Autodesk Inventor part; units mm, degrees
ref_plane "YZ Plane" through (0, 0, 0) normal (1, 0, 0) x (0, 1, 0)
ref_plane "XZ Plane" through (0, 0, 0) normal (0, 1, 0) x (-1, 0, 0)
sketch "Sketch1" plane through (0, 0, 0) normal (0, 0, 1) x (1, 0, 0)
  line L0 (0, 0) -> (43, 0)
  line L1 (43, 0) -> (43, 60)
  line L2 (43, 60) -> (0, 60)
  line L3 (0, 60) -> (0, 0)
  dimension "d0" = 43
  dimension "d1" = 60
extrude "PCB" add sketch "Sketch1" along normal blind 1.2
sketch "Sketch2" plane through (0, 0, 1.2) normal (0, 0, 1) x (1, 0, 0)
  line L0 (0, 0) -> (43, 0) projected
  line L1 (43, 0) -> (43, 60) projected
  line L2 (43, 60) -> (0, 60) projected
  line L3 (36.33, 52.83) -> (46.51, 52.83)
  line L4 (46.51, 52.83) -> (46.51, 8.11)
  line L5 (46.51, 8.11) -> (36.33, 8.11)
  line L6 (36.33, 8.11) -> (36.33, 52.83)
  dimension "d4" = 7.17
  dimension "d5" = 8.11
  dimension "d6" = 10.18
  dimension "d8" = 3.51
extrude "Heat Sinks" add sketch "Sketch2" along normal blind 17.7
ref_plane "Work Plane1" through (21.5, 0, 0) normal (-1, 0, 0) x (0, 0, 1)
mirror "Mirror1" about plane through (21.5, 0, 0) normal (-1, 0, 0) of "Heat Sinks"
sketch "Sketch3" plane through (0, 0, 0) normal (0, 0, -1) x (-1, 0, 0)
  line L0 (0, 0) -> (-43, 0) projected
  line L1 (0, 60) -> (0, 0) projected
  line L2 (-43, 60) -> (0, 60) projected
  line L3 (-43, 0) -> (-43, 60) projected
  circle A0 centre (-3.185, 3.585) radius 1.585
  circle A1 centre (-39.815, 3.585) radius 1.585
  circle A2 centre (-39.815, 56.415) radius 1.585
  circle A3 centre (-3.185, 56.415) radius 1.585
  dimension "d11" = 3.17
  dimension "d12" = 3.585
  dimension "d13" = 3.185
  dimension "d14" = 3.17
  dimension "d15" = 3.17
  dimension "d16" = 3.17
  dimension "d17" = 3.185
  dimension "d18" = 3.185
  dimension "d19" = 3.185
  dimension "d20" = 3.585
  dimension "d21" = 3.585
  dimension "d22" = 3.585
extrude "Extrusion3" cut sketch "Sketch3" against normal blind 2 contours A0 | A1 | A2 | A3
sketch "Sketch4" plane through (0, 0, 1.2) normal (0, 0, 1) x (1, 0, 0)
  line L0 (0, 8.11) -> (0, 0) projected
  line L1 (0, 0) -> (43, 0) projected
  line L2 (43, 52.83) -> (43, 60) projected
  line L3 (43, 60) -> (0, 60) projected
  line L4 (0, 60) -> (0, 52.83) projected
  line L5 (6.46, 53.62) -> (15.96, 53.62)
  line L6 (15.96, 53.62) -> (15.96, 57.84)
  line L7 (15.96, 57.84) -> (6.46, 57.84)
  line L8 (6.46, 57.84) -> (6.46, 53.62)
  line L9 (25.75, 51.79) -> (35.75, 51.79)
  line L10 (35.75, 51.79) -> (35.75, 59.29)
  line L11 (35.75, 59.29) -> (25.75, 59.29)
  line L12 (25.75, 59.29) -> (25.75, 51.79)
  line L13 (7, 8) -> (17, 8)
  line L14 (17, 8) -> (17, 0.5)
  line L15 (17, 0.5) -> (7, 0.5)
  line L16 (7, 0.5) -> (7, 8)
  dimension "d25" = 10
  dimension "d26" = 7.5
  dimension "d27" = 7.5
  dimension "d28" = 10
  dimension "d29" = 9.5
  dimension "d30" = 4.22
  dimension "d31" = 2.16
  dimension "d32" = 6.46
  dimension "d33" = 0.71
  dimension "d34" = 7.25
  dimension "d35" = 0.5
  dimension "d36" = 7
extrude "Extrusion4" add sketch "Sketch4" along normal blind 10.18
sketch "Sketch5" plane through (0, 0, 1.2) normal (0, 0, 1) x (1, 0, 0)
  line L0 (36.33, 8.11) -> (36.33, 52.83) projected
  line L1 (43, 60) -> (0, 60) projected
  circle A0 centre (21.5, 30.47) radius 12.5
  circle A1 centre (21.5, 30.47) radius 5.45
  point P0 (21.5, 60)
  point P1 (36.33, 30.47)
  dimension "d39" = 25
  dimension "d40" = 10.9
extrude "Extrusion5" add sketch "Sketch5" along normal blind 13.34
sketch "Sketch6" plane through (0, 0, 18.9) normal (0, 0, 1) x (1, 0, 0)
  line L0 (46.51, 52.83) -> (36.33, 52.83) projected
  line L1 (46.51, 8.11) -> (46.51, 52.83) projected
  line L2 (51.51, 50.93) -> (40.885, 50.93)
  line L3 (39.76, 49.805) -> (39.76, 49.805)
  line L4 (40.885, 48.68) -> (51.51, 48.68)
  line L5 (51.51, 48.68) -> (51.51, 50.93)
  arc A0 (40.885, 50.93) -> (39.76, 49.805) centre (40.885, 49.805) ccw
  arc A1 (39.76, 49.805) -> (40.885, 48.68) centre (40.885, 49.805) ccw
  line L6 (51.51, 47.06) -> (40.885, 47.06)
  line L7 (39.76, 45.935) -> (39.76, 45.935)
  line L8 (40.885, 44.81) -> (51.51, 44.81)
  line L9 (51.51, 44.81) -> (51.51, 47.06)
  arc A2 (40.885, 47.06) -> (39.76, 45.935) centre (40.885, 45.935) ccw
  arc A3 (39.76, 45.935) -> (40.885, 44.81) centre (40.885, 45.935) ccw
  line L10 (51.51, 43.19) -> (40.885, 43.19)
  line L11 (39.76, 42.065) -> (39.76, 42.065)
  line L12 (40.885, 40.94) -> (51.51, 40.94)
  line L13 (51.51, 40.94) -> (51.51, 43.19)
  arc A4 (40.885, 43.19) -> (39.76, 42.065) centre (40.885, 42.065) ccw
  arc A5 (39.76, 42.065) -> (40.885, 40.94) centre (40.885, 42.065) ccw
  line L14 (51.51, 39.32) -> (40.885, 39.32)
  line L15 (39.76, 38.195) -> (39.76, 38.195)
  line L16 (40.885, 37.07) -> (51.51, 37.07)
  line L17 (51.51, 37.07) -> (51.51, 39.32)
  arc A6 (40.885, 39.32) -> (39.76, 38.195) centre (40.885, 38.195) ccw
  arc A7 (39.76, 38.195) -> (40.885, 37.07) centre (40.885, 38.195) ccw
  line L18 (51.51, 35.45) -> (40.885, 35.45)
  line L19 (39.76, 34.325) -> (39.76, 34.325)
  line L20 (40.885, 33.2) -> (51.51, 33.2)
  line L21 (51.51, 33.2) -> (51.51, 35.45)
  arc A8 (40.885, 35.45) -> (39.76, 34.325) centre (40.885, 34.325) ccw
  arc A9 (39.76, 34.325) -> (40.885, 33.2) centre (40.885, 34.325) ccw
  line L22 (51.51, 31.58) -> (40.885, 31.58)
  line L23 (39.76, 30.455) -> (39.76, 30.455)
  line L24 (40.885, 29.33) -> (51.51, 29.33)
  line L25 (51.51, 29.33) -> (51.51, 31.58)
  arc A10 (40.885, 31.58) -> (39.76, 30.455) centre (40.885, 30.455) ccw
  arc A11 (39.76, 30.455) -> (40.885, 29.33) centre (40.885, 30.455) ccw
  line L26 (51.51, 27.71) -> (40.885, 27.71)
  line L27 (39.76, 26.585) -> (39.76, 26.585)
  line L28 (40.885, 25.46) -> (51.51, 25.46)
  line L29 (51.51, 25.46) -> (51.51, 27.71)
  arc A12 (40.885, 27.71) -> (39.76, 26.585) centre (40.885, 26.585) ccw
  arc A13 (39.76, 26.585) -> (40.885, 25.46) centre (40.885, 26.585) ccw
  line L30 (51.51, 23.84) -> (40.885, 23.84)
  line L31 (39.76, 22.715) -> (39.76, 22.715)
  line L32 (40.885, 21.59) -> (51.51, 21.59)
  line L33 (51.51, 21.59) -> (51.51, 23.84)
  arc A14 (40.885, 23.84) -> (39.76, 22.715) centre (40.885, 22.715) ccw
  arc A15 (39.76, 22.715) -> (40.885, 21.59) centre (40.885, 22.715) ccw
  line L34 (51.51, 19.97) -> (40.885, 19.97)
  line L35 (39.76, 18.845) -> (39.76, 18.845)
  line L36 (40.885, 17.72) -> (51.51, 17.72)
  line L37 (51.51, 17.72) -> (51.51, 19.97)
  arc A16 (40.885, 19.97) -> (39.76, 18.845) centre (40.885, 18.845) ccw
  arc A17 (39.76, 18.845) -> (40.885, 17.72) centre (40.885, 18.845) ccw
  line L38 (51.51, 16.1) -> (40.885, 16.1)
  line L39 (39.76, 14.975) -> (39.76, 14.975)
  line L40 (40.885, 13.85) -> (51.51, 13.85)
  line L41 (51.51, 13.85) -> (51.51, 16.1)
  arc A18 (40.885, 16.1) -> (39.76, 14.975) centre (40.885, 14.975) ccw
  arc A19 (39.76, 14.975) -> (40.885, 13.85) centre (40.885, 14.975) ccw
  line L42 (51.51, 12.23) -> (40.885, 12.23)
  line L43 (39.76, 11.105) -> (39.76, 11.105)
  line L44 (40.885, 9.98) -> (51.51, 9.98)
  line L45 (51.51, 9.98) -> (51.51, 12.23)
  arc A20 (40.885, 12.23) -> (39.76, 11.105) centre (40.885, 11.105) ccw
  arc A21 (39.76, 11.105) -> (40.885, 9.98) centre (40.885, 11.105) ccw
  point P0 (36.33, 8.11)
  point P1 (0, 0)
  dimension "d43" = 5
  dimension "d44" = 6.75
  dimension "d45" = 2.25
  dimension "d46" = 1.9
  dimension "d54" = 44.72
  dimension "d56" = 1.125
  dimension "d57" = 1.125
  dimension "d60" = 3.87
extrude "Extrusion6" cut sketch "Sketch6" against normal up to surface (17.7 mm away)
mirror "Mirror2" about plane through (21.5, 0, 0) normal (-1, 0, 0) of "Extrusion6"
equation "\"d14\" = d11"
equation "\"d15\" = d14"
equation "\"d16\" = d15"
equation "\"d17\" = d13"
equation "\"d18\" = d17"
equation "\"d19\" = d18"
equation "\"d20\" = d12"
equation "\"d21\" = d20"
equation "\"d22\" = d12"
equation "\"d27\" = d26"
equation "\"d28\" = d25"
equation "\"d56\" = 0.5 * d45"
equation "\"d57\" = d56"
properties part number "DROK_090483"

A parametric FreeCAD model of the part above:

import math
import FreeCAD as App
import Part
import Sketcher

V = App.Vector
Q = App.Units.Quantity


def add_polygon(sketch, points):
    """Adds a closed chain of lines whose ends are joined by coincident constraints."""
    first, n = sketch.GeometryCount, len(points)
    for a, b in zip(points, points[1:] + points[:1]):
        sketch.addGeometry(Part.LineSegment(App.Vector(*a, 0), App.Vector(*b, 0)), False)
    for i in range(n):
        sketch.addConstraint(Sketcher.Constraint("Coincident", first + i, 2, first + (i + 1) % n, 1))

doc = App.newDocument("Part")
body = doc.addObject("PartDesign::Body", "Body")

sketch1 = doc.addObject("Sketcher::SketchObject", "Sketch")
body.addObject(sketch1)
sketch1.AttachmentSupport = (doc.XY_Plane, [""])
sketch1.MapMode = "FlatFace"
add_polygon(sketch1, [(0, 60), (0, 0), (43, 0), (43, 60)])
sketch1.addConstraint([
    Sketcher.Constraint("Vertical", 0),
    Sketcher.Constraint("Horizontal", 1),
    Sketcher.Constraint("Vertical", 2),
    Sketcher.Constraint("Horizontal", 3),
    Sketcher.Constraint("Coincident", 0, 2, -1, 1),
    Sketcher.Constraint("DistanceX", 1, 1, 1, 2, Q("43 mm")),
    Sketcher.Constraint("DistanceY", 0, 2, 0, 1, Q("60 mm")),
])
pad1 = doc.addObject("PartDesign::Pad", "Pad")
body.addObject(pad1)
pad1.Profile = sketch1
pad1.Length = 1.2

sketch2 = doc.addObject("Sketcher::SketchObject", "Sketch001")
body.addObject(sketch2)
sketch2.AttachmentSupport = (doc.XY_Plane, [""])
sketch2.MapMode = "FlatFace"
sketch2.AttachmentOffset = App.Placement(V(0, 0, 1.2), App.Rotation())
add_polygon(sketch2, [(36.33, 8.11), (46.51, 8.11), (46.51, 52.83), (36.33, 52.83)])
sketch2.addConstraint([
    Sketcher.Constraint("Horizontal", 0),
    Sketcher.Constraint("Vertical", 1),
    Sketcher.Constraint("Horizontal", 2),
    Sketcher.Constraint("Vertical", 3),
    Sketcher.Constraint("DistanceX", 0, 1, 0, 2, Q("10.18 mm")),
    Sketcher.Constraint("DistanceY", -1, 1, 0, 2, Q("8.11 mm")),
    Sketcher.Constraint("DistanceY", 1, 1, 1, 2, Q("44.72 mm")),
    Sketcher.Constraint("DistanceX", -1, 1, 0, 2, Q("46.51 mm")),
])
pad2 = doc.addObject("PartDesign::Pad", "Pad001")
body.addObject(pad2)
pad2.Profile = sketch2
pad2.Length = 17.7
doc.recompute()

datumplane = doc.addObject("PartDesign::Plane", "DatumPlane")
body.addObject(datumplane)
datumplane.AttachmentSupport = (doc.YZ_Plane, [""])
datumplane.MapMode = "FlatFace"
datumplane.AttachmentOffset = App.Placement(V(0, 0, 21.5), App.Rotation())
mirrored = doc.addObject("PartDesign::Mirrored", "Mirrored")
body.addObject(mirrored)
mirrored.Originals = [pad2]
mirrored.MirrorPlane = (datumplane, [""])
body.Tip = mirrored

sketch3 = doc.addObject("Sketcher::SketchObject", "Sketch002")
body.addObject(sketch3)
sketch3.AttachmentSupport = (doc.XY_Plane, [""])
sketch3.MapMode = "FlatFace"
sketch3.addGeometry([
    Part.Circle(V(3.185, 3.585, 0), V(0, 0, 1), 1.585),
    Part.Circle(V(39.815, 3.585, 0), V(0, 0, 1), 1.585),
    Part.Circle(V(39.815, 56.415, 0), V(0, 0, 1), 1.585),
    Part.Circle(V(3.185, 56.415, 0), V(0, 0, 1), 1.585),
], False)
sketch3.addConstraint([
    Sketcher.Constraint("Equal", 0, 1),
    Sketcher.Constraint("Equal", 1, 2),
    Sketcher.Constraint("Equal", 2, 3),
    Sketcher.Constraint("Horizontal", 0, 3, 1, 3),
    Sketcher.Constraint("Horizontal", 2, 3, 3, 3),
    Sketcher.Constraint("Vertical", 1, 3, 2, 3),
    Sketcher.Constraint("Vertical", 0, 3, 3, 3),
    Sketcher.Constraint("Diameter", 0, Q("3.17 mm")),
    Sketcher.Constraint("DistanceX", -1, 1, 0, 3, Q("3.185 mm")),
    Sketcher.Constraint("DistanceY", -1, 1, 0, 3, Q("3.585 mm")),
    Sketcher.Constraint("DistanceX", 0, 3, 1, 3, Q("36.63 mm")),
    Sketcher.Constraint("DistanceY", 1, 3, 2, 3, Q("52.83 mm")),
])
pocket1 = doc.addObject("PartDesign::Pocket", "Pocket")
body.addObject(pocket1)
pocket1.Profile = sketch3
pocket1.Length = 2
pocket1.Reversed = True

sketch4 = doc.addObject("Sketcher::SketchObject", "Sketch003")
body.addObject(sketch4)
sketch4.AttachmentSupport = (doc.XY_Plane, [""])
sketch4.MapMode = "FlatFace"
sketch4.AttachmentOffset = App.Placement(V(0, 0, 1.2), App.Rotation())
add_polygon(sketch4, [(6.46, 57.84), (6.46, 53.62), (15.96, 53.62), (15.96, 57.84)])
add_polygon(sketch4, [(25.75, 59.29), (25.75, 51.79), (35.75, 51.79), (35.75, 59.29)])
add_polygon(sketch4, [(17, 8), (7, 8), (7, 0.5), (17, 0.5)])
sketch4.addConstraint([
    Sketcher.Constraint("Vertical", 0),
    Sketcher.Constraint("Horizontal", 1),
    Sketcher.Constraint("Vertical", 2),
    Sketcher.Constraint("Horizontal", 3),
    Sketcher.Constraint("Vertical", 4),
    Sketcher.Constraint("Horizontal", 5),
    Sketcher.Constraint("Vertical", 6),
    Sketcher.Constraint("Horizontal", 7),
    Sketcher.Constraint("Horizontal", 8),
    Sketcher.Constraint("Vertical", 9),
    Sketcher.Constraint("Horizontal", 10),
    Sketcher.Constraint("Vertical", 11),
    Sketcher.Constraint("Equal", 7, 8),
    Sketcher.Constraint("Equal", 6, 9),
    Sketcher.Constraint("DistanceX", 5, 1, 5, 2, Q("10 mm")),
    Sketcher.Constraint("DistanceX", 1, 1, 1, 2, Q("9.5 mm")),
    Sketcher.Constraint("DistanceY", 4, 2, 4, 1, Q("7.5 mm")),
    Sketcher.Constraint("DistanceX", -1, 1, 8, 2, Q("7 mm")),
    Sketcher.Constraint("DistanceY", 0, 2, 0, 1, Q("4.22 mm")),
    Sketcher.Constraint("DistanceY", -1, 1, 9, 2, Q("0.5 mm")),
    Sketcher.Constraint("DistanceX", -1, 1, 0, 2, Q("6.46 mm")),
    Sketcher.Constraint("DistanceY", -1, 1, 0, 2, Q("53.62 mm")),
    Sketcher.Constraint("DistanceX", -1, 1, 4, 2, Q("25.75 mm")),
    Sketcher.Constraint("DistanceY", -1, 1, 4, 2, Q("51.79 mm")),
])
pad3 = doc.addObject("PartDesign::Pad", "Pad002")
body.addObject(pad3)
pad3.Profile = sketch4
pad3.Length = 10.18

sketch5 = doc.addObject("Sketcher::SketchObject", "Sketch004")
body.addObject(sketch5)
sketch5.AttachmentSupport = (doc.XY_Plane, [""])
sketch5.MapMode = "FlatFace"
sketch5.AttachmentOffset = App.Placement(V(0, 0, 1.2), App.Rotation())
sketch5.addGeometry([
    Part.Circle(V(21.5, 30.47, 0), V(0, 0, 1), 12.5),
    Part.Circle(V(21.5, 30.47, 0), V(0, 0, 1), 5.45),
], False)
sketch5.addConstraint([
    Sketcher.Constraint("Coincident", 1, 3, 0, 3),
    Sketcher.Constraint("Diameter", 0, Q("25 mm")),
    Sketcher.Constraint("Diameter", 1, Q("10.9 mm")),
    Sketcher.Constraint("DistanceX", -1, 1, 0, 3, Q("21.5 mm")),
    Sketcher.Constraint("DistanceY", -1, 1, 0, 3, Q("30.47 mm")),
])
pad4 = doc.addObject("PartDesign::Pad", "Pad003")
body.addObject(pad4)
pad4.Profile = sketch5
pad4.Length = 13.34

sketch6 = doc.addObject("Sketcher::SketchObject", "Sketch005")
body.addObject(sketch6)
sketch6.AttachmentSupport = (doc.XY_Plane, [""])
sketch6.MapMode = "FlatFace"
sketch6.AttachmentOffset = App.Placement(V(0, 0, 18.9), App.Rotation())
sketch6.addGeometry([
    Part.LineSegment(V(40.885, 9.98, 0), V(51.51, 9.98, 0)),
    Part.LineSegment(V(51.51, 9.98, 0), V(51.51, 12.23, 0)),
    Part.LineSegment(V(51.51, 12.23, 0), V(40.885, 12.23, 0)),
    Part.ArcOfCircle(Part.Circle(V(40.885, 11.105, 0), V(0, 0, 1), 1.125), math.radians(90), math.radians(270)),
    Part.LineSegment(V(40.885, 48.68, 0), V(51.51, 48.68, 0)),
    Part.LineSegment(V(51.51, 48.68, 0), V(51.51, 50.93, 0)),
    Part.LineSegment(V(51.51, 50.93, 0), V(40.885, 50.93, 0)),
    Part.ArcOfCircle(Part.Circle(V(40.885, 49.805, 0), V(0, 0, 1), 1.125), math.radians(90), math.radians(270)),
    Part.LineSegment(V(40.885, 44.81, 0), V(51.51, 44.81, 0)),
    Part.LineSegment(V(51.51, 44.81, 0), V(51.51, 47.06, 0)),
    Part.LineSegment(V(51.51, 47.06, 0), V(40.885, 47.06, 0)),
    Part.ArcOfCircle(Part.Circle(V(40.885, 45.935, 0), V(0, 0, 1), 1.125), math.radians(90), math.radians(270)),
    Part.LineSegment(V(40.885, 40.94, 0), V(51.51, 40.94, 0)),
    Part.LineSegment(V(51.51, 40.94, 0), V(51.51, 43.19, 0)),
    Part.LineSegment(V(51.51, 43.19, 0), V(40.885, 43.19, 0)),
    Part.ArcOfCircle(Part.Circle(V(40.885, 42.065, 0), V(0, 0, 1), 1.125), math.radians(90), math.radians(270)),
    Part.LineSegment(V(40.885, 37.07, 0), V(51.51, 37.07, 0)),
    Part.LineSegment(V(51.51, 37.07, 0), V(51.51, 39.32, 0)),
    Part.LineSegment(V(51.51, 39.32, 0), V(40.885, 39.32, 0)),
    Part.ArcOfCircle(Part.Circle(V(40.885, 38.195, 0), V(0, 0, 1), 1.125), math.radians(90), math.radians(270)),
    Part.LineSegment(V(40.885, 33.2, 0), V(51.51, 33.2, 0)),
    Part.LineSegment(V(51.51, 33.2, 0), V(51.51, 35.45, 0)),
    Part.LineSegment(V(51.51, 35.45, 0), V(40.885, 35.45, 0)),
    Part.ArcOfCircle(Part.Circle(V(40.885, 34.325, 0), V(0, 0, 1), 1.125), math.radians(90), math.radians(270)),
    Part.LineSegment(V(40.885, 29.33, 0), V(51.51, 29.33, 0)),
    Part.LineSegment(V(51.51, 29.33, 0), V(51.51, 31.58, 0)),
    Part.LineSegment(V(51.51, 31.58, 0), V(40.885, 31.58, 0)),
    Part.ArcOfCircle(Part.Circle(V(40.885, 30.455, 0), V(0, 0, 1), 1.125), math.radians(90), math.radians(270)),
    Part.LineSegment(V(40.885, 25.46, 0), V(51.51, 25.46, 0)),
    Part.LineSegment(V(51.51, 25.46, 0), V(51.51, 27.71, 0)),
    Part.LineSegment(V(51.51, 27.71, 0), V(40.885, 27.71, 0)),
    Part.ArcOfCircle(Part.Circle(V(40.885, 26.585, 0), V(0, 0, 1), 1.125), math.radians(90), math.radians(270)),
    Part.LineSegment(V(40.885, 21.59, 0), V(51.51, 21.59, 0)),
    Part.LineSegment(V(51.51, 21.59, 0), V(51.51, 23.84, 0)),
    Part.LineSegment(V(51.51, 23.84, 0), V(40.885, 23.84, 0)),
    Part.ArcOfCircle(Part.Circle(V(40.885, 22.715, 0), V(0, 0, 1), 1.125), math.radians(90), math.radians(270)),
    Part.LineSegment(V(40.885, 17.72, 0), V(51.51, 17.72, 0)),
    Part.LineSegment(V(51.51, 17.72, 0), V(51.51, 19.97, 0)),
    Part.LineSegment(V(51.51, 19.97, 0), V(40.885, 19.97, 0)),
    Part.ArcOfCircle(Part.Circle(V(40.885, 18.845, 0), V(0, 0, 1), 1.125), math.radians(90), math.radians(270)),
    Part.LineSegment(V(40.885, 13.85, 0), V(51.51, 13.85, 0)),
    Part.LineSegment(V(51.51, 13.85, 0), V(51.51, 16.1, 0)),
    Part.LineSegment(V(51.51, 16.1, 0), V(40.885, 16.1, 0)),
    Part.ArcOfCircle(Part.Circle(V(40.885, 14.975, 0), V(0, 0, 1), 1.125), math.radians(90), math.radians(270)),
], False)
sketch6.addConstraint([
    Sketcher.Constraint("Coincident", 0, 2, 1, 1),
    Sketcher.Constraint("Coincident", 1, 2, 2, 1),
    Sketcher.Constraint("Tangent", 2, 2, 3, 1),
    Sketcher.Constraint("Tangent", 3, 2, 0, 1),
    Sketcher.Constraint("Coincident", 4, 2, 5, 1),
    Sketcher.Constraint("Coincident", 5, 2, 6, 1),
    Sketcher.Constraint("Tangent", 6, 2, 7, 1),
    Sketcher.Constraint("Tangent", 7, 2, 4, 1),
    Sketcher.Constraint("Coincident", 8, 2, 9, 1),
    Sketcher.Constraint("Coincident", 9, 2, 10, 1),
    Sketcher.Constraint("Tangent", 10, 2, 11, 1),
    Sketcher.Constraint("Tangent", 11, 2, 8, 1),
    Sketcher.Constraint("Coincident", 12, 2, 13, 1),
    Sketcher.Constraint("Coincident", 13, 2, 14, 1),
    Sketcher.Constraint("Tangent", 14, 2, 15, 1),
    Sketcher.Constraint("Tangent", 15, 2, 12, 1),
    Sketcher.Constraint("Coincident", 16, 2, 17, 1),
    Sketcher.Constraint("Coincident", 17, 2, 18, 1),
    Sketcher.Constraint("Tangent", 18, 2, 19, 1),
    Sketcher.Constraint("Tangent", 19, 2, 16, 1),
    Sketcher.Constraint("Coincident", 20, 2, 21, 1),
    Sketcher.Constraint("Coincident", 21, 2, 22, 1),
    Sketcher.Constraint("Tangent", 22, 2, 23, 1),
    Sketcher.Constraint("Tangent", 23, 2, 20, 1),
    Sketcher.Constraint("Coincident", 24, 2, 25, 1),
    Sketcher.Constraint("Coincident", 25, 2, 26, 1),
    Sketcher.Constraint("Tangent", 26, 2, 27, 1),
    Sketcher.Constraint("Tangent", 27, 2, 24, 1),
    Sketcher.Constraint("Coincident", 28, 2, 29, 1),
    Sketcher.Constraint("Coincident", 29, 2, 30, 1),
    Sketcher.Constraint("Tangent", 30, 2, 31, 1),
    Sketcher.Constraint("Tangent", 31, 2, 28, 1),
    Sketcher.Constraint("Coincident", 32, 2, 33, 1),
    Sketcher.Constraint("Coincident", 33, 2, 34, 1),
    Sketcher.Constraint("Tangent", 34, 2, 35, 1),
    Sketcher.Constraint("Tangent", 35, 2, 32, 1),
    Sketcher.Constraint("Coincident", 36, 2, 37, 1),
    Sketcher.Constraint("Coincident", 37, 2, 38, 1),
    Sketcher.Constraint("Tangent", 38, 2, 39, 1),
    Sketcher.Constraint("Tangent", 39, 2, 36, 1),
    Sketcher.Constraint("Coincident", 40, 2, 41, 1),
    Sketcher.Constraint("Coincident", 41, 2, 42, 1),
    Sketcher.Constraint("Tangent", 42, 2, 43, 1),
    Sketcher.Constraint("Tangent", 43, 2, 40, 1),
    Sketcher.Constraint("Horizontal", 0),
    Sketcher.Constraint("Vertical", 1),
    Sketcher.Constraint("Horizontal", 2),
    Sketcher.Constraint("Horizontal", 4),
    Sketcher.Constraint("Vertical", 5),
    Sketcher.Constraint("Horizontal", 6),
    Sketcher.Constraint("Horizontal", 8),
    Sketcher.Constraint("Vertical", 9),
    Sketcher.Constraint("Horizontal", 10),
    Sketcher.Constraint("Horizontal", 12),
    Sketcher.Constraint("Vertical", 13),
    Sketcher.Constraint("Horizontal", 14),
    Sketcher.Constraint("Horizontal", 16),
    Sketcher.Constraint("Vertical", 17),
    Sketcher.Constraint("Horizontal", 18),
    Sketcher.Constraint("Horizontal", 20),
    Sketcher.Constraint("Vertical", 21),
    Sketcher.Constraint("Horizontal", 22),
    Sketcher.Constraint("Horizontal", 24),
    Sketcher.Constraint("Vertical", 25),
    Sketcher.Constraint("Horizontal", 26),
    Sketcher.Constraint("Horizontal", 28),
    Sketcher.Constraint("Vertical", 29),
    Sketcher.Constraint("Horizontal", 30),
    Sketcher.Constraint("Horizontal", 32),
    Sketcher.Constraint("Vertical", 33),
    Sketcher.Constraint("Horizontal", 34),
    Sketcher.Constraint("Horizontal", 36),
    Sketcher.Constraint("Vertical", 37),
    Sketcher.Constraint("Horizontal", 38),
    Sketcher.Constraint("Horizontal", 40),
    Sketcher.Constraint("Vertical", 41),
    Sketcher.Constraint("Horizontal", 42),
    Sketcher.Constraint("Equal", 3, 7),
    Sketcher.Constraint("Equal", 7, 11),
    Sketcher.Constraint("Equal", 11, 15),
    Sketcher.Constraint("Equal", 15, 19),
    Sketcher.Constraint("Equal", 19, 23),
    Sketcher.Constraint("Equal", 23, 27),
    Sketcher.Constraint("Equal", 27, 31),
    Sketcher.Constraint("Equal", 31, 35),
    Sketcher.Constraint("Equal", 35, 39),
    Sketcher.Constraint("Equal", 39, 43),
    Sketcher.Constraint("Vertical", 3, 3, 7, 3),
    Sketcher.Constraint("Vertical", 7, 3, 11, 3),
    Sketcher.Constraint("Vertical", 11, 3, 15, 3),
    Sketcher.Constraint("Vertical", 15, 3, 19, 3),
    Sketcher.Constraint("Vertical", 19, 3, 23, 3),
    Sketcher.Constraint("Vertical", 23, 3, 27, 3),
    Sketcher.Constraint("Vertical", 27, 3, 31, 3),
    Sketcher.Constraint("Vertical", 31, 3, 35, 3),
    Sketcher.Constraint("Vertical", 35, 3, 39, 3),
    Sketcher.Constraint("Vertical", 39, 3, 43, 3),
    Sketcher.Constraint("Vertical", 1, 2, 4, 2),
    Sketcher.Constraint("Vertical", 5, 2, 8, 2),
    Sketcher.Constraint("Vertical", 9, 2, 12, 2),
    Sketcher.Constraint("Vertical", 13, 2, 16, 2),
    Sketcher.Constraint("Vertical", 17, 2, 20, 2),
    Sketcher.Constraint("Vertical", 21, 2, 24, 2),
    Sketcher.Constraint("Vertical", 25, 2, 28, 2),
    Sketcher.Constraint("Vertical", 29, 2, 32, 2),
    Sketcher.Constraint("Vertical", 33, 2, 36, 2),
    Sketcher.Constraint("Vertical", 37, 2, 40, 2),
    Sketcher.Constraint("Radius", 3, Q("1.125 mm")),
    Sketcher.Constraint("DistanceY", 11, 3, 7, 3, Q("3.87 mm")),
    Sketcher.Constraint("DistanceY", 15, 3, 11, 3, Q("3.87 mm")),
    Sketcher.Constraint("DistanceY", 19, 3, 15, 3, Q("3.87 mm")),
    Sketcher.Constraint("DistanceY", 23, 3, 19, 3, Q("3.87 mm")),
    Sketcher.Constraint("DistanceY", 27, 3, 23, 3, Q("3.87 mm")),
    Sketcher.Constraint("DistanceY", 31, 3, 27, 3, Q("3.87 mm")),
    Sketcher.Constraint("DistanceY", 35, 3, 31, 3, Q("3.87 mm")),
    Sketcher.Constraint("DistanceY", 39, 3, 35, 3, Q("3.87 mm")),
    Sketcher.Constraint("DistanceY", 3, 3, 43, 3, Q("3.87 mm")),
    Sketcher.Constraint("DistanceY", 43, 3, 39, 3, Q("3.87 mm")),
    Sketcher.Constraint("DistanceY", -1, 1, 20, 2, Q("33.2 mm")),
    Sketcher.Constraint("DistanceX", 0, 1, 0, 2, Q("10.625 mm")),
    Sketcher.Constraint("DistanceX", -1, 1, 0, 2, Q("51.51 mm")),
])
pocket2 = doc.addObject("PartDesign::Pocket", "Pocket001")
body.addObject(pocket2)
pocket2.Profile = sketch6
pocket2.Length = 17.7
doc.recompute()

datumplane2 = doc.addObject("PartDesign::Plane", "DatumPlane001")
body.addObject(datumplane2)
datumplane2.AttachmentSupport = (doc.YZ_Plane, [""])
datumplane2.MapMode = "FlatFace"
datumplane2.AttachmentOffset = App.Placement(V(0, 0, 21.5), App.Rotation())
mirrored2 = doc.addObject("PartDesign::Mirrored", "Mirrored001")
body.addObject(mirrored2)
mirrored2.Originals = [pocket2]
mirrored2.MirrorPlane = (datumplane2, [""])
body.Tip = mirrored2

doc.recompute()
